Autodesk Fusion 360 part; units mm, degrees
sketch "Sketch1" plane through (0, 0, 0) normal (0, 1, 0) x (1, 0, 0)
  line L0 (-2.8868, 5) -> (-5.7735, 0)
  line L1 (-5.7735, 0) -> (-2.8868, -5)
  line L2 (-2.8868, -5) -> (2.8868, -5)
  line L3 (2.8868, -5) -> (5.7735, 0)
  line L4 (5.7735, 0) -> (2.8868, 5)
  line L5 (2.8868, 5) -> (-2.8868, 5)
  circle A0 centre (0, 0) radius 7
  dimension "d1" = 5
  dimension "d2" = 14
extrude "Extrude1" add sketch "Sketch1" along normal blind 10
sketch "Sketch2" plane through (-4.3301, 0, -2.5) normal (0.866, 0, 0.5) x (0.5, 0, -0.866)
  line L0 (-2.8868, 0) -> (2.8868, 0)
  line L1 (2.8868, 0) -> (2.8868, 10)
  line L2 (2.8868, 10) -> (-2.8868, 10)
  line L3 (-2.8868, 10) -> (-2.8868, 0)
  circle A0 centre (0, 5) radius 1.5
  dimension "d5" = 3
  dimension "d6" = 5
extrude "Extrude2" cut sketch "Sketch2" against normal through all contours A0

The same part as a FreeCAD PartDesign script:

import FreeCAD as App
import Part
import Sketcher
from FreeCAD import Vector
Q = App.Units.Quantity

doc = App.newDocument("Part")
body = doc.addObject("PartDesign::Body", "Body")

# Sketch on XZ plane
sketch1 = doc.addObject("Sketcher::SketchObject", "Sketch")
body.addObject(sketch1)
sketch1.AttachmentSupport = (doc.XZ_Plane, [""])
sketch1.MapMode = "FlatFace"
sketch1.addGeometry([
    Part.Circle(Vector(0, 0, 0), Vector(0, 0, 1), 7),  # 0
    Part.LineSegment(Vector(-6, 0, 0), Vector(-3, -5, 0)),  # 1
    Part.LineSegment(Vector(-3, -5, 0), Vector(3, -5, 0)),  # 2
    Part.LineSegment(Vector(3, -5, 0), Vector(6, 0, 0)),  # 3
    Part.LineSegment(Vector(6, 0, 0), Vector(3, 5, 0)),  # 4
    Part.LineSegment(Vector(3, 5, 0), Vector(-3, 5, 0)),  # 5
    Part.LineSegment(Vector(-3, 5, 0), Vector(-6, 0, 0)),  # 6
], False)
sketch1.addConstraint([
    Sketcher.Constraint("Coincident", 1, 2, 2, 1),
    Sketcher.Constraint("Coincident", 2, 2, 3, 1),
    Sketcher.Constraint("Coincident", 3, 2, 4, 1),
    Sketcher.Constraint("Coincident", 4, 2, 5, 1),
    Sketcher.Constraint("Coincident", 5, 2, 6, 1),
    Sketcher.Constraint("Coincident", 6, 2, 1, 1),
    Sketcher.Constraint("Horizontal", 2),
    Sketcher.Constraint("Horizontal", 5),
    Sketcher.Constraint("Coincident", 0, 3, -1, 1),
    Sketcher.Constraint("Symmetric", 1, 2, 4, 2, -1, 1),
    Sketcher.Constraint("Symmetric", 3, 2, 6, 2, -1, 1),
    Sketcher.Constraint("PointOnObject", 3, 2, -1),
    Sketcher.Constraint("Parallel", 3, 6),
    Sketcher.Constraint("Vertical", 2, 2, 4, 2),
    Sketcher.Constraint("Diameter", 0, Q("14 mm")),
    Sketcher.Constraint("DistanceY", 1, 2, -1, 1, Q("5 mm")),
    Sketcher.Constraint("Angle", 1, Q("-60.0004 deg")),
    Sketcher.Constraint("DistanceX", 2, 1, 2, 2, Q("5.7736 mm")),
])
pad1 = doc.addObject("PartDesign::Pad", "Pad")
body.addObject(pad1)
pad1.Profile = sketch1
pad1.Length = 10
pad1.Reversed = True

# Sketch on an angled plane
sketch2 = doc.addObject("Sketcher::SketchObject", "Sketch001")
body.addObject(sketch2)
sketch2.Placement = App.Placement(Vector(-4.3301, 0, -2.5), App.Rotation(Vector(0.5, 0, -0.866025404), Vector(0, 1, 0), Vector(0.866025404, 0, 0.5), "ZXY"))
sketch2.addGeometry(Part.Circle(Vector(0, 5, 0), Vector(0, 0, 1), 1.5), False)
sketch2.addConstraint([
    Sketcher.Constraint("PointOnObject", 0, 3, -2),
    Sketcher.Constraint("Diameter", 0, Q("3 mm")),
    Sketcher.Constraint("DistanceY", -1, 1, 0, 3, Q("5 mm")),
])
pocket1 = doc.addObject("PartDesign::Pocket", "Pocket")
body.addObject(pocket1)
pocket1.Profile = sketch2
pocket1.Type = "ThroughAll"

doc.recompute()
